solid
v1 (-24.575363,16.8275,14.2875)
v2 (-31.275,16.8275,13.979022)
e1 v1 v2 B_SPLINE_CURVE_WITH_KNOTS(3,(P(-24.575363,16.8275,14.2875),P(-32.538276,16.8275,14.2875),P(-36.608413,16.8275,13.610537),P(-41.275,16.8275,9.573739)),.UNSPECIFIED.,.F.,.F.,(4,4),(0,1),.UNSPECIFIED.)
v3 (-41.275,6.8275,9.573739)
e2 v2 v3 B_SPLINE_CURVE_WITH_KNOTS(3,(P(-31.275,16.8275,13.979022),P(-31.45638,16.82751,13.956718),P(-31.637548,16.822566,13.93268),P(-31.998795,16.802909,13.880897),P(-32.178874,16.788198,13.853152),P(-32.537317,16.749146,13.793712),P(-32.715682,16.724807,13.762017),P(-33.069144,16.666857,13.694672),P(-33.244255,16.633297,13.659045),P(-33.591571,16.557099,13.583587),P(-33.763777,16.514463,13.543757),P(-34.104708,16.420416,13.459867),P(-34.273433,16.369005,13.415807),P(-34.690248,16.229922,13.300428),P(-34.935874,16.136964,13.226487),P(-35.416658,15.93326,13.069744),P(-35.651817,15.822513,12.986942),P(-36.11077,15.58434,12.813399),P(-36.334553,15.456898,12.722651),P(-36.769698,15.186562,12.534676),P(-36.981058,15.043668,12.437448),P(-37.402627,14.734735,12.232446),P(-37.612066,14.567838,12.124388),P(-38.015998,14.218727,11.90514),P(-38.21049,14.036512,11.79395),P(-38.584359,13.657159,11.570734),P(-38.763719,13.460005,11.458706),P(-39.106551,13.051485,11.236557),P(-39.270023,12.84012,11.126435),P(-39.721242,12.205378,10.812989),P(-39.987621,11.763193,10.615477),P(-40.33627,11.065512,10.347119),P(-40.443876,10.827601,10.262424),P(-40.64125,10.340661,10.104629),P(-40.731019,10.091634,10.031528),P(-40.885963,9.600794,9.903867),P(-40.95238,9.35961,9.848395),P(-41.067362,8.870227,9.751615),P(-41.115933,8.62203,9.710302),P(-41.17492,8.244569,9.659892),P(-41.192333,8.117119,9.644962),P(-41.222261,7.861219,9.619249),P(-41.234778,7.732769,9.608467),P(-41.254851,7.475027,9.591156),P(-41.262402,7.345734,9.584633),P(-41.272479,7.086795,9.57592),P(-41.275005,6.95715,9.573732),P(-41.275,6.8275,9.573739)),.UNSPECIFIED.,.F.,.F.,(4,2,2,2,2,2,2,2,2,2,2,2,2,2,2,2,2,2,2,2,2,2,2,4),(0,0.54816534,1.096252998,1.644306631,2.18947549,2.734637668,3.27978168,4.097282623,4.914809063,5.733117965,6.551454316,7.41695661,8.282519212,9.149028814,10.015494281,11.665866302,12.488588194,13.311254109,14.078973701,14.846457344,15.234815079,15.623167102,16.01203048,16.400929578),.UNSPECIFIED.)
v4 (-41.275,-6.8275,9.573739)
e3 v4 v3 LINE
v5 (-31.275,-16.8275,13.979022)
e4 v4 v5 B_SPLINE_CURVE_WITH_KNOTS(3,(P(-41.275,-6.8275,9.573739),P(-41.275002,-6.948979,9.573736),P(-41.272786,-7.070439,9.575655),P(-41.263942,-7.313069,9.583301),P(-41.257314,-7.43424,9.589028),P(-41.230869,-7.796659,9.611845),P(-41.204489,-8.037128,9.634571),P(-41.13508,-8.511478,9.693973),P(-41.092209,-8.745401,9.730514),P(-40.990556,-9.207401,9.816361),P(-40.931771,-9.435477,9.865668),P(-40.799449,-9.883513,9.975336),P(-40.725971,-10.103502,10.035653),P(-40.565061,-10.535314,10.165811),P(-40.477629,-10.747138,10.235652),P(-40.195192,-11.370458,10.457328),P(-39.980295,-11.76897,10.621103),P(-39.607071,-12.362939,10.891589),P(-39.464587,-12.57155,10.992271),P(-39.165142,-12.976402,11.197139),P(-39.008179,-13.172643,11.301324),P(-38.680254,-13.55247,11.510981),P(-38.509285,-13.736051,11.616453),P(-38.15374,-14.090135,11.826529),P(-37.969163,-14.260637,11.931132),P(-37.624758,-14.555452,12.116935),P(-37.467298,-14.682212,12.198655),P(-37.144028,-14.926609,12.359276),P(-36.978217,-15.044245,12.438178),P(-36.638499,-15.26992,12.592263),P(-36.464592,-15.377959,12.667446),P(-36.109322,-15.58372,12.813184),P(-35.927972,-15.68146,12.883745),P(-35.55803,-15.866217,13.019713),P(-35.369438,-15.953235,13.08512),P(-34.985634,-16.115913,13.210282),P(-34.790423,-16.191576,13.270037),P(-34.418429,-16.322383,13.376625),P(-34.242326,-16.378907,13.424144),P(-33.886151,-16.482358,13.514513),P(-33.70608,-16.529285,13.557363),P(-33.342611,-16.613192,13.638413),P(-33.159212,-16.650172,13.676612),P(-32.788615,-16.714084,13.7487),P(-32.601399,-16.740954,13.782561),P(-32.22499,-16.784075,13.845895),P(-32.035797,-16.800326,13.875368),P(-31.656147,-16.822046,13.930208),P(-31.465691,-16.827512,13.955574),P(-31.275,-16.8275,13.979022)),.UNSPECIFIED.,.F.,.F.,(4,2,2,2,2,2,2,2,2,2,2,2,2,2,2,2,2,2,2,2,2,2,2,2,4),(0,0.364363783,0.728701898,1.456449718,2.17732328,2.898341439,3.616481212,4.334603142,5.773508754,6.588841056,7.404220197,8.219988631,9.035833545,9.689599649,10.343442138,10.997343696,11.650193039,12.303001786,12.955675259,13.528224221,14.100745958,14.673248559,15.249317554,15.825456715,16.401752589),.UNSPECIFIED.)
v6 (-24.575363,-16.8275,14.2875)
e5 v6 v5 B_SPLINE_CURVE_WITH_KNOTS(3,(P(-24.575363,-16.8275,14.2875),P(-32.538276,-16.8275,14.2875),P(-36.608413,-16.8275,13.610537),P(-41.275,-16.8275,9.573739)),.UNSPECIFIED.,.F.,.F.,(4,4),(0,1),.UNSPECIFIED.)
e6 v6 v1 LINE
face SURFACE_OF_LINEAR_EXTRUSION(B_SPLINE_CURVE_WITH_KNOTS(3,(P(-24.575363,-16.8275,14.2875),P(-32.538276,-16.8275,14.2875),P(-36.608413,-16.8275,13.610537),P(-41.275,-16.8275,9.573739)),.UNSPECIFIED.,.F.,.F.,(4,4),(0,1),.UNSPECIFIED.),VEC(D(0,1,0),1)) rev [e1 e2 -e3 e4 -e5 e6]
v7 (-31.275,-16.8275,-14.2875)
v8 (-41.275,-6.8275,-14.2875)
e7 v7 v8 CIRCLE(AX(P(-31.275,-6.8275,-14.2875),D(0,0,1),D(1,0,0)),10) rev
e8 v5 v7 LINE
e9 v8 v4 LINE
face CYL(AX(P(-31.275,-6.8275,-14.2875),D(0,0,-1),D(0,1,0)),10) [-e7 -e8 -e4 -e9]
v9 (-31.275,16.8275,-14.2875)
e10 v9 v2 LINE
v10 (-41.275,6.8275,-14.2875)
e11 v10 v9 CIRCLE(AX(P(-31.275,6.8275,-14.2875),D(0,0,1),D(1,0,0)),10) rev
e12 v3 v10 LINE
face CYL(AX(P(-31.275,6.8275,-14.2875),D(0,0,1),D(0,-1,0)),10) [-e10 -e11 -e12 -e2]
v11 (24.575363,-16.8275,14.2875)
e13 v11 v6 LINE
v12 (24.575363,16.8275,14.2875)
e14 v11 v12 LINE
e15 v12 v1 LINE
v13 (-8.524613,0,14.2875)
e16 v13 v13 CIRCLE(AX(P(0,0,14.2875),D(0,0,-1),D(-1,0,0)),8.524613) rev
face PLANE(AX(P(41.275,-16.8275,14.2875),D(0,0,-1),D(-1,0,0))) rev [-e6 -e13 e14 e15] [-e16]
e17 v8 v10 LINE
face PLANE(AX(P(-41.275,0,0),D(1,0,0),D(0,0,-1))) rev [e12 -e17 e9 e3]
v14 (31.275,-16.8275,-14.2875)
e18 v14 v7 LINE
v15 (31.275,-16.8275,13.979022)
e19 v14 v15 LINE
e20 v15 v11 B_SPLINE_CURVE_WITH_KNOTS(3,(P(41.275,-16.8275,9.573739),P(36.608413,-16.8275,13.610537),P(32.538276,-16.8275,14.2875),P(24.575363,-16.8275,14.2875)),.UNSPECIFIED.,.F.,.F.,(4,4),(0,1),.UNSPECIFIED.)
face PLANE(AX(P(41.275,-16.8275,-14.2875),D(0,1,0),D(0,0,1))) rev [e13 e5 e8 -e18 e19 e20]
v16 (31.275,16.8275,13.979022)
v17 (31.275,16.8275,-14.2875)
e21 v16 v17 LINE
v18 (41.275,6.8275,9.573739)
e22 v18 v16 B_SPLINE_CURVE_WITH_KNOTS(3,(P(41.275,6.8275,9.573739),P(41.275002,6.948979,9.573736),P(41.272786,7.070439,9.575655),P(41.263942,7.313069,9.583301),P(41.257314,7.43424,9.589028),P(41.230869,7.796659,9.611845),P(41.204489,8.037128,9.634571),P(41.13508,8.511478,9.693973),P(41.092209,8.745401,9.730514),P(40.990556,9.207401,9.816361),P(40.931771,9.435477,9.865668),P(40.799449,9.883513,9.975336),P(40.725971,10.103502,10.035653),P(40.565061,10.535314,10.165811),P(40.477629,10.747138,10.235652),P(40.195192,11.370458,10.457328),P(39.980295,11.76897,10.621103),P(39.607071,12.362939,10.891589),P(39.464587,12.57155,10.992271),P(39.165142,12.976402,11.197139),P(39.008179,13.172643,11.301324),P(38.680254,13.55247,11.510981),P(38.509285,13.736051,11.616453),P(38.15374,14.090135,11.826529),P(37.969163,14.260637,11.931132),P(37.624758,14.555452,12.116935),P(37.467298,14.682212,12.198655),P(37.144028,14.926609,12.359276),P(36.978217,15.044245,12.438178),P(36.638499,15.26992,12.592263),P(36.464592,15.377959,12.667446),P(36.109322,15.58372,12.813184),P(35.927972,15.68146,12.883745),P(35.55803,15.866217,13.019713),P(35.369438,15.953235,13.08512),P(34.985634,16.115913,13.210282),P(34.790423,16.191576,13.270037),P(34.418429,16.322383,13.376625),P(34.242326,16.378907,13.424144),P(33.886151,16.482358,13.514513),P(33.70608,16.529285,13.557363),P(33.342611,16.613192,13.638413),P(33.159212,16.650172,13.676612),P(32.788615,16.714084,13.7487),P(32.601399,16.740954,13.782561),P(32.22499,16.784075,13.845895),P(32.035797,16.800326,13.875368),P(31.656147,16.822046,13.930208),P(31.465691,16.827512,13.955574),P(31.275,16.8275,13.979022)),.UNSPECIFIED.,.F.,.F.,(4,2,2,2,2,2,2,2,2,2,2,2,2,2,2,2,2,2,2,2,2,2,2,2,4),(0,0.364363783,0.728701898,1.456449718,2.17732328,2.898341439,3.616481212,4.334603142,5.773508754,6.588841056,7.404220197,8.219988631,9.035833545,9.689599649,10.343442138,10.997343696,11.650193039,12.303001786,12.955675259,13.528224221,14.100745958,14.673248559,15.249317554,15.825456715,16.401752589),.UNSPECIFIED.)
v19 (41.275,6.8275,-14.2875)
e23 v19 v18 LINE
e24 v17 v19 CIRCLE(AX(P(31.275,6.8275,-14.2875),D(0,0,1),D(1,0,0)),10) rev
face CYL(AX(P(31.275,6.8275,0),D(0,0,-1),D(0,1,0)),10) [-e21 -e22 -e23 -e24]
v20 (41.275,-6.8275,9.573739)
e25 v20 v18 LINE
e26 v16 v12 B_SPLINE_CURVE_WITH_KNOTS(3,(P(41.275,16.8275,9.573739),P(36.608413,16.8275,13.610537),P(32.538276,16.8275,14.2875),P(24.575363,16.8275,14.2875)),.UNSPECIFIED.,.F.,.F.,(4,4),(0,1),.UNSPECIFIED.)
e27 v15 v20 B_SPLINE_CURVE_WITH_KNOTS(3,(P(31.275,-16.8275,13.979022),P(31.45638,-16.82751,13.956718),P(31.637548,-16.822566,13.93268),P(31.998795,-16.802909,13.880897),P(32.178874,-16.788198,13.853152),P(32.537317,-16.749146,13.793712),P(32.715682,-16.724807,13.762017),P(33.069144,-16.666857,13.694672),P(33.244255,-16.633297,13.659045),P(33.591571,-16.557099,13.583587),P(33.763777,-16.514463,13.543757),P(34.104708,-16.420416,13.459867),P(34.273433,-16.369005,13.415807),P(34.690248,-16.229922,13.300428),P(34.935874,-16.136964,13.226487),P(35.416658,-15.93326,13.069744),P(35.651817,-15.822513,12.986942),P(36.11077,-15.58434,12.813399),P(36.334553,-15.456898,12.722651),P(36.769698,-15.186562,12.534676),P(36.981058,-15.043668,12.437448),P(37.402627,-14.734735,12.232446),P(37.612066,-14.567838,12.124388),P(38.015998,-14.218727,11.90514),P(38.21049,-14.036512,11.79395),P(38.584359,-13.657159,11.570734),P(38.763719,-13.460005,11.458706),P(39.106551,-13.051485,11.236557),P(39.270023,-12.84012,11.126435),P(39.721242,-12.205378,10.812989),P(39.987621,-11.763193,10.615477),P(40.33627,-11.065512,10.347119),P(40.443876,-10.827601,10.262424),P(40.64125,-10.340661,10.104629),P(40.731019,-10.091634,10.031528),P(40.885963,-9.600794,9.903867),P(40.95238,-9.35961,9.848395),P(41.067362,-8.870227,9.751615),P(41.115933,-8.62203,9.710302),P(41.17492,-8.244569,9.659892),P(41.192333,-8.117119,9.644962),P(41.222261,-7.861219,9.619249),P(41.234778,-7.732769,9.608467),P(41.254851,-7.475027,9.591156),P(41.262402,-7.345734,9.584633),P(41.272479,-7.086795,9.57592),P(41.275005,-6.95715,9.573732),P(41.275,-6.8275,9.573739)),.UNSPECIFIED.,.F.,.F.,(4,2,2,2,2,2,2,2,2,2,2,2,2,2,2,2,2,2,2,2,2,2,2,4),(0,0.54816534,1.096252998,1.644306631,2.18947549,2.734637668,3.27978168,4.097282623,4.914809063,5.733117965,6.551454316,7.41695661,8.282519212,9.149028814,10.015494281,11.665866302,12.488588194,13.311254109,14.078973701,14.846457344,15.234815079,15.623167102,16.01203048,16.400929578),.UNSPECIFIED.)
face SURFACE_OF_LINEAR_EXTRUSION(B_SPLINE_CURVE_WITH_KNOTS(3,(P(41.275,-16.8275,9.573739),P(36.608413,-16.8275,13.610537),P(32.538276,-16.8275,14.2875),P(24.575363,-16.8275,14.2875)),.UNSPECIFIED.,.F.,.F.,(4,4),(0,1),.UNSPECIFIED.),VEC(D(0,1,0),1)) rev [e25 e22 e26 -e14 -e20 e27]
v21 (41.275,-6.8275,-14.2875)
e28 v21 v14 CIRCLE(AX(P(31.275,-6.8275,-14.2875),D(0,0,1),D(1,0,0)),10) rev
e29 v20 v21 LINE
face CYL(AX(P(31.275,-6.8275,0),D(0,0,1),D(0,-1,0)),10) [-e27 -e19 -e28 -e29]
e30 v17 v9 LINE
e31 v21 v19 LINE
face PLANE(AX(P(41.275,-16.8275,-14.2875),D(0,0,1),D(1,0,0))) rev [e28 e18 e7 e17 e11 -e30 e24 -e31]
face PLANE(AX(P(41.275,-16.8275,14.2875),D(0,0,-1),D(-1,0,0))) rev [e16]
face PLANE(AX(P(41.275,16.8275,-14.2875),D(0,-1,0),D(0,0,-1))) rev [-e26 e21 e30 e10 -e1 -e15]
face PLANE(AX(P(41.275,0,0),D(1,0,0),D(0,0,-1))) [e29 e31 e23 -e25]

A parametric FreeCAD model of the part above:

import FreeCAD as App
import Part
import Sketcher
Q = App.Units.Quantity


def edges_at(feature, points):
    """Names of the edges that pass closest to the given points."""
    edges = feature.Shape.Edges
    near = lambda p: min(range(len(edges)), key=lambda i: edges[i].distToShape(Part.Vertex(*p))[0])
    return sorted({f"Edge{near(p) + 1}" for p in points})


def add_polygon(sketch, points):
    """Adds a closed chain of lines whose ends are joined by coincident constraints."""
    first, n = sketch.GeometryCount, len(points)
    for a, b in zip(points, points[1:] + points[:1]):
        sketch.addGeometry(Part.LineSegment(App.Vector(*a, 0), App.Vector(*b, 0)), False)
    for i in range(n):
        sketch.addConstraint(Sketcher.Constraint("Coincident", first + i, 2, first + (i + 1) % n, 1))

doc = App.newDocument("Part")
body = doc.addObject("PartDesign::Body", "Body")

sketch1 = doc.addObject("Sketcher::SketchObject", "Sketch")
body.addObject(sketch1)
sketch1.AttachmentSupport = (doc.YZ_Plane, [""])
sketch1.MapMode = "FlatFace"
add_polygon(sketch1, [(17, 14), (-17, 14), (-17, -14), (17, -14)])
sketch1.addConstraint([
    Sketcher.Constraint("Horizontal", 0),
    Sketcher.Constraint("Vertical", 1),
    Sketcher.Constraint("Horizontal", 2),
    Sketcher.Constraint("Vertical", 3),
    Sketcher.Constraint("Symmetric", 0, 2, 2, 2, -1, 1),
    Sketcher.Constraint("DistanceX", 0, 2, 0, 1, Q("1.325 in")),
    Sketcher.Constraint("DistanceY", 1, 2, 1, 1, Q("1.125 in")),
])
pad1 = doc.addObject("PartDesign::Pad", "Pad")
body.addObject(pad1)
pad1.Profile = sketch1
pad1.Length = Q("3.25 in")
pad1.Midplane = True
doc.recompute()

fillet = doc.addObject("PartDesign::Fillet", "Fillet")
body.addObject(fillet)
fillet.Base = (pad1, edges_at(pad1, [
    (41.275, 16.828, 0),
    (-41.275, 16.828, 0),
    (-41.275, -16.828, 0),
    (41.275, -16.828, 0),
]))
fillet.Radius = 10

sketch2 = doc.addObject("Sketcher::SketchObject", "Sketch001")
body.addObject(sketch2)
sketch2.AttachmentSupport = (doc.XZ_Plane, [""])
sketch2.MapMode = "FlatFace"
sketch2.AttachmentOffset = App.Placement(App.Vector(0, 0, -0.6625 * 25.4), App.Rotation())
sketch2.addGeometry([
    Part.LineSegment(App.Vector(-41.275, 9.573739, 0), App.Vector(-47.491413, 9.573739, 0)),
    Part.LineSegment(App.Vector(-47.491413, 9.573739, 0), App.Vector(-47.491413, 17.624281, 0)),
    Part.LineSegment(App.Vector(-47.491413, 17.624281, 0), App.Vector(-24.575363, 17.624281, 0)),
    Part.LineSegment(App.Vector(-24.575363, 17.624281, 0), App.Vector(-24.575363, 14.2875, 0)),
    Part.BSplineCurve([App.Vector(-41.275, 9.573739, 0), App.Vector(-36.608413, 13.610537, 0), App.Vector(-32.538276, 14.2875, 0), App.Vector(-24.575363, 14.2875, 0)], [4, 4], [0, 1], False, 3, [1, 1, 1, 1], False),
    Part.LineSegment(App.Vector(24.575363, 14.2875, 0), App.Vector(24.575363, 17.624281, 0)),
    Part.LineSegment(App.Vector(24.575363, 17.624281, 0), App.Vector(47.491413, 17.624281, 0)),
    Part.LineSegment(App.Vector(47.491413, 17.624281, 0), App.Vector(47.491413, 9.573739, 0)),
    Part.LineSegment(App.Vector(47.491413, 9.573739, 0), App.Vector(41.275, 9.573739, 0)),
    Part.BSplineCurve([App.Vector(41.275, 9.573739, 0), App.Vector(36.608413, 13.610537, 0), App.Vector(32.538276, 14.2875, 0), App.Vector(24.575363, 14.2875, 0)], [4, 4], [0, 1], False, 3, [1, 1, 1, 1], False),
], False)
sketch2.addConstraint([
    Sketcher.Constraint("Block", 4),
    Sketcher.Constraint("Block", 9),
    Sketcher.Constraint("Coincident", 0, 2, 1, 1),
    Sketcher.Constraint("Coincident", 1, 2, 2, 1),
    Sketcher.Constraint("Coincident", 2, 2, 3, 1),
    Sketcher.Constraint("Coincident", 3, 2, 4, 2),
    Sketcher.Constraint("Coincident", 4, 1, 0, 1),
    Sketcher.Constraint("Coincident", 5, 2, 6, 1),
    Sketcher.Constraint("Coincident", 6, 2, 7, 1),
    Sketcher.Constraint("Coincident", 7, 2, 8, 1),
    Sketcher.Constraint("Coincident", 8, 2, 9, 1),
    Sketcher.Constraint("Coincident", 9, 2, 5, 1),
    Sketcher.Constraint("Horizontal", 0),
    Sketcher.Constraint("Vertical", 1),
    Sketcher.Constraint("Horizontal", 2),
    Sketcher.Constraint("Vertical", 3),
    Sketcher.Constraint("Vertical", 5),
    Sketcher.Constraint("Horizontal", 6),
    Sketcher.Constraint("Vertical", 7),
    Sketcher.Constraint("Horizontal", 8),
    Sketcher.Constraint("Symmetric", 1, 2, 6, 2, -2),
    Sketcher.Constraint("DistanceX", 2, 1, 2, 2, 22.916051),
    Sketcher.Constraint("DistanceY", 1, 1, 1, 2, 8.050542),
])
pocket1 = doc.addObject("PartDesign::Pocket", "Pocket")
body.addObject(pocket1)
pocket1.Profile = sketch2
pocket1.Type = "ThroughAll"
pocket1.Reversed = True

doc.recompute()
